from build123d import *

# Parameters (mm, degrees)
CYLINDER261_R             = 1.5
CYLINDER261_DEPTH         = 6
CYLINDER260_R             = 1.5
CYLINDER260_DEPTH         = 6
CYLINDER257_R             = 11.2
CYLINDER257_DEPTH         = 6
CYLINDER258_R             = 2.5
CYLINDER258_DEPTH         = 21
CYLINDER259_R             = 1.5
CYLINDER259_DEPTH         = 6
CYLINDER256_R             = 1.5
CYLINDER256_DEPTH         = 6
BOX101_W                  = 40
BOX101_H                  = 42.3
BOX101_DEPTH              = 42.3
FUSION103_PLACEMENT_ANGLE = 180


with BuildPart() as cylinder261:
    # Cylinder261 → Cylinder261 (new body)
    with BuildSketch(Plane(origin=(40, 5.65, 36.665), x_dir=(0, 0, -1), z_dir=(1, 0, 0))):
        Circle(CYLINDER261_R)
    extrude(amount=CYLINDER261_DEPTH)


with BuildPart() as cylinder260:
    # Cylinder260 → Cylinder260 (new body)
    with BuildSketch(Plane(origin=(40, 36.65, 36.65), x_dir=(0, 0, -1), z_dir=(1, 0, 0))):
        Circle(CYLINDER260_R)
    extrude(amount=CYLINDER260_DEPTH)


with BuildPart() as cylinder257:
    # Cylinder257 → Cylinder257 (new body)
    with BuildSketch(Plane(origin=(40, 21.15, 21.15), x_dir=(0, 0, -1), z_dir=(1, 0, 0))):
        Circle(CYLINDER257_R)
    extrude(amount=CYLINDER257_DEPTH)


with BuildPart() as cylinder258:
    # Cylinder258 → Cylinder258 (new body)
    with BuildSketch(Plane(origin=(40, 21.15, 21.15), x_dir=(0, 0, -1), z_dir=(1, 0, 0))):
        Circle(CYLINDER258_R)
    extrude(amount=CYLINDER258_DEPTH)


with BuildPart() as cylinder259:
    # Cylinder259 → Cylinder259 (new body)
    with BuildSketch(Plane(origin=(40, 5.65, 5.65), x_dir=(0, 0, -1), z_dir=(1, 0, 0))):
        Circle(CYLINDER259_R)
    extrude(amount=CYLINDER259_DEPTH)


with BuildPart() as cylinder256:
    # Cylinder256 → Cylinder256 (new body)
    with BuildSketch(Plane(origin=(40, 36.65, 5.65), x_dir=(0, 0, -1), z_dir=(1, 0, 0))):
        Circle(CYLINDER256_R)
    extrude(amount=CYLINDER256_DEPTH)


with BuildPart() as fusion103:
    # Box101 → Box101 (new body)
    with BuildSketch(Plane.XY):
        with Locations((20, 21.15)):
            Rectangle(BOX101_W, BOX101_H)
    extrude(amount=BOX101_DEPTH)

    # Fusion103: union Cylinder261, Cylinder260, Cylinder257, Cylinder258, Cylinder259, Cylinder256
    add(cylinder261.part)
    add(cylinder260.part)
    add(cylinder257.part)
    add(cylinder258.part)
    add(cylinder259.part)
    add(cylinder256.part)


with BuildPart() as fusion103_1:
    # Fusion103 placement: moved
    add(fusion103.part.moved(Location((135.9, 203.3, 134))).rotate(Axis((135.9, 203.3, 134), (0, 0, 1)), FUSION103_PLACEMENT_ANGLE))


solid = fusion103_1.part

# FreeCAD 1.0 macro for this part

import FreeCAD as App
import Part
import Sketcher
from FreeCAD import Vector

doc = App.newDocument("Part")
body = doc.addObject("PartDesign::Body", "Body")

# Sketch on YZ plane
sketch1 = doc.addObject("Sketcher::SketchObject", "Sketch")
body.addObject(sketch1)
sketch1.AttachmentSupport = (doc.YZ_Plane, [""])
sketch1.MapMode = "FlatFace"
sketch1.AttachmentOffset = App.Placement(Vector(0, 0, 40), App.Rotation())
sketch1.addGeometry(Part.Circle(Vector(5.65, 36.665, 0), Vector(0, 0, 1), 1.5), False)
sketch1.addConstraint(Sketcher.Constraint("Diameter", 0, 3.0))
sketch1.addConstraint(Sketcher.Constraint("DistanceX", -1, 1, 0, 3, 5.65))
sketch1.addConstraint(Sketcher.Constraint("DistanceY", -1, 1, 0, 3, 36.665))
pad1 = doc.addObject("PartDesign::Pad", "Pad")
body.addObject(pad1)
pad1.Profile = sketch1
pad1.Length = 6
body2 = doc.addObject("PartDesign::Body", "Body001")

# Sketch on YZ plane
sketch2 = doc.addObject("Sketcher::SketchObject", "Sketch001")
body2.addObject(sketch2)
sketch2.AttachmentSupport = (doc.getObject("YZ_Plane001"), [""])
sketch2.MapMode = "FlatFace"
sketch2.AttachmentOffset = App.Placement(Vector(0, 0, 40), App.Rotation())
sketch2.addGeometry(Part.Circle(Vector(36.65, 36.65, 0), Vector(0, 0, 1), 1.5), False)
sketch2.addConstraint(Sketcher.Constraint("Diameter", 0, 3.0))
sketch2.addConstraint(Sketcher.Constraint("DistanceX", -1, 1, 0, 3, 36.65))
sketch2.addConstraint(Sketcher.Constraint("DistanceY", -1, 1, 0, 3, 36.65))
pad2 = doc.addObject("PartDesign::Pad", "Pad001")
body2.addObject(pad2)
pad2.Profile = sketch2
pad2.Length = 6
body3 = doc.addObject("PartDesign::Body", "Body002")

# Sketch on YZ plane
sketch3 = doc.addObject("Sketcher::SketchObject", "Sketch002")
body3.addObject(sketch3)
sketch3.AttachmentSupport = (doc.getObject("YZ_Plane002"), [""])
sketch3.MapMode = "FlatFace"
sketch3.AttachmentOffset = App.Placement(Vector(0, 0, 40), App.Rotation())
sketch3.addGeometry(Part.Circle(Vector(21.15, 21.15, 0), Vector(0, 0, 1), 11.2), False)
sketch3.addConstraint(Sketcher.Constraint("Diameter", 0, 22.4))
sketch3.addConstraint(Sketcher.Constraint("DistanceX", -1, 1, 0, 3, 21.15))
sketch3.addConstraint(Sketcher.Constraint("DistanceY", -1, 1, 0, 3, 21.15))
pad3 = doc.addObject("PartDesign::Pad", "Pad002")
body3.addObject(pad3)
pad3.Profile = sketch3
pad3.Length = 6
body4 = doc.addObject("PartDesign::Body", "Body003")

# Sketch on YZ plane
sketch4 = doc.addObject("Sketcher::SketchObject", "Sketch003")
body4.addObject(sketch4)
sketch4.AttachmentSupport = (doc.getObject("YZ_Plane003"), [""])
sketch4.MapMode = "FlatFace"
sketch4.AttachmentOffset = App.Placement(Vector(0, 0, 40), App.Rotation())
sketch4.addGeometry(Part.Circle(Vector(21.15, 21.15, 0), Vector(0, 0, 1), 2.5), False)
sketch4.addConstraint(Sketcher.Constraint("Diameter", 0, 5.0))
sketch4.addConstraint(Sketcher.Constraint("DistanceX", -1, 1, 0, 3, 21.15))
sketch4.addConstraint(Sketcher.Constraint("DistanceY", -1, 1, 0, 3, 21.15))
pad4 = doc.addObject("PartDesign::Pad", "Pad003")
body4.addObject(pad4)
pad4.Profile = sketch4
pad4.Length = 21
body5 = doc.addObject("PartDesign::Body", "Body004")

# Sketch on YZ plane
sketch5 = doc.addObject("Sketcher::SketchObject", "Sketch004")
body5.addObject(sketch5)
sketch5.AttachmentSupport = (doc.getObject("YZ_Plane004"), [""])
sketch5.MapMode = "FlatFace"
sketch5.AttachmentOffset = App.Placement(Vector(0, 0, 40), App.Rotation())
sketch5.addGeometry(Part.Circle(Vector(5.65, 5.65, 0), Vector(0, 0, 1), 1.5), False)
sketch5.addConstraint(Sketcher.Constraint("Diameter", 0, 3.0))
sketch5.addConstraint(Sketcher.Constraint("DistanceX", -1, 1, 0, 3, 5.65))
sketch5.addConstraint(Sketcher.Constraint("DistanceY", -1, 1, 0, 3, 5.65))
pad5 = doc.addObject("PartDesign::Pad", "Pad004")
body5.addObject(pad5)
pad5.Profile = sketch5
pad5.Length = 6
body6 = doc.addObject("PartDesign::Body", "Body005")

# Sketch on YZ plane
sketch6 = doc.addObject("Sketcher::SketchObject", "Sketch005")
body6.addObject(sketch6)
sketch6.AttachmentSupport = (doc.getObject("YZ_Plane005"), [""])
sketch6.MapMode = "FlatFace"
sketch6.AttachmentOffset = App.Placement(Vector(0, 0, 40), App.Rotation())
sketch6.addGeometry(Part.Circle(Vector(36.65, 5.65, 0), Vector(0, 0, 1), 1.5), False)
sketch6.addConstraint(Sketcher.Constraint("Diameter", 0, 3.0))
sketch6.addConstraint(Sketcher.Constraint("DistanceX", -1, 1, 0, 3, 36.65))
sketch6.addConstraint(Sketcher.Constraint("DistanceY", -1, 1, 0, 3, 5.65))
pad6 = doc.addObject("PartDesign::Pad", "Pad005")
body6.addObject(pad6)
pad6.Profile = sketch6
pad6.Length = 6
body7 = doc.addObject("PartDesign::Body", "Body006")

# Sketch on XY plane
sketch7 = doc.addObject("Sketcher::SketchObject", "Sketch006")
body7.addObject(sketch7)
sketch7.AttachmentSupport = (doc.getObject("XY_Plane006"), [""])
sketch7.MapMode = "FlatFace"
sketch7.addGeometry(Part.LineSegment(Vector(0, 42.3, 0), Vector(0, 0, 0)), False)
sketch7.addGeometry(Part.LineSegment(Vector(0, 0, 0), Vector(40, 0, 0)), False)
sketch7.addGeometry(Part.LineSegment(Vector(40, 0, 0), Vector(40, 42.3, 0)), False)
sketch7.addGeometry(Part.LineSegment(Vector(40, 42.3, 0), Vector(0, 42.3, 0)), False)
sketch7.addConstraint(Sketcher.Constraint("Coincident", 0, 2, 1, 1))
sketch7.addConstraint(Sketcher.Constraint("Coincident", 1, 2, 2, 1))
sketch7.addConstraint(Sketcher.Constraint("Coincident", 2, 2, 3, 1))
sketch7.addConstraint(Sketcher.Constraint("Coincident", 3, 2, 0, 1))
sketch7.addConstraint(Sketcher.Constraint("Vertical", 0))
sketch7.addConstraint(Sketcher.Constraint("Horizontal", 1))
sketch7.addConstraint(Sketcher.Constraint("Vertical", 2))
sketch7.addConstraint(Sketcher.Constraint("Horizontal", 3))
sketch7.addConstraint(Sketcher.Constraint("Coincident", 0, 2, -1, 1))
sketch7.addConstraint(Sketcher.Constraint("DistanceX", 1, 1, 1, 2, 40.0))
sketch7.addConstraint(Sketcher.Constraint("DistanceY", 0, 2, 0, 1, 42.3))
pad7 = doc.addObject("PartDesign::Pad", "Pad006")
body7.addObject(pad7)
pad7.Profile = sketch7
pad7.Length = 42.3
doc.recompute()

boolean = doc.addObject("PartDesign::Boolean", "Boolean")
body7.addObject(boolean)
boolean.Type = "Fuse"
boolean.addObjects([body])
doc.recompute()

boolean2 = doc.addObject("PartDesign::Boolean", "Boolean001")
body7.addObject(boolean2)
boolean2.Type = "Fuse"
boolean2.addObjects([body2])
doc.recompute()

boolean3 = doc.addObject("PartDesign::Boolean", "Boolean002")
body7.addObject(boolean3)
boolean3.Type = "Fuse"
boolean3.addObjects([body3])
doc.recompute()

boolean4 = doc.addObject("PartDesign::Boolean", "Boolean003")
body7.addObject(boolean4)
boolean4.Type = "Fuse"
boolean4.addObjects([body4])
doc.recompute()

boolean5 = doc.addObject("PartDesign::Boolean", "Boolean004")
body7.addObject(boolean5)
boolean5.Type = "Fuse"
boolean5.addObjects([body5])
doc.recompute()

boolean6 = doc.addObject("PartDesign::Boolean", "Boolean005")
body7.addObject(boolean6)
boolean6.Type = "Fuse"
boolean6.addObjects([body6])
body8 = doc.addObject("PartDesign::Body", "Body007")
doc.recompute()

body7.Placement = App.Placement(Vector(135.9, 203.3, 134), App.Rotation(Vector(0, 0, 1), 180))
boolean7 = doc.addObject("PartDesign::Boolean", "Boolean006")
body8.addObject(boolean7)
boolean7.Type = "Fuse"
boolean7.addObjects([body7])

doc.recompute()
